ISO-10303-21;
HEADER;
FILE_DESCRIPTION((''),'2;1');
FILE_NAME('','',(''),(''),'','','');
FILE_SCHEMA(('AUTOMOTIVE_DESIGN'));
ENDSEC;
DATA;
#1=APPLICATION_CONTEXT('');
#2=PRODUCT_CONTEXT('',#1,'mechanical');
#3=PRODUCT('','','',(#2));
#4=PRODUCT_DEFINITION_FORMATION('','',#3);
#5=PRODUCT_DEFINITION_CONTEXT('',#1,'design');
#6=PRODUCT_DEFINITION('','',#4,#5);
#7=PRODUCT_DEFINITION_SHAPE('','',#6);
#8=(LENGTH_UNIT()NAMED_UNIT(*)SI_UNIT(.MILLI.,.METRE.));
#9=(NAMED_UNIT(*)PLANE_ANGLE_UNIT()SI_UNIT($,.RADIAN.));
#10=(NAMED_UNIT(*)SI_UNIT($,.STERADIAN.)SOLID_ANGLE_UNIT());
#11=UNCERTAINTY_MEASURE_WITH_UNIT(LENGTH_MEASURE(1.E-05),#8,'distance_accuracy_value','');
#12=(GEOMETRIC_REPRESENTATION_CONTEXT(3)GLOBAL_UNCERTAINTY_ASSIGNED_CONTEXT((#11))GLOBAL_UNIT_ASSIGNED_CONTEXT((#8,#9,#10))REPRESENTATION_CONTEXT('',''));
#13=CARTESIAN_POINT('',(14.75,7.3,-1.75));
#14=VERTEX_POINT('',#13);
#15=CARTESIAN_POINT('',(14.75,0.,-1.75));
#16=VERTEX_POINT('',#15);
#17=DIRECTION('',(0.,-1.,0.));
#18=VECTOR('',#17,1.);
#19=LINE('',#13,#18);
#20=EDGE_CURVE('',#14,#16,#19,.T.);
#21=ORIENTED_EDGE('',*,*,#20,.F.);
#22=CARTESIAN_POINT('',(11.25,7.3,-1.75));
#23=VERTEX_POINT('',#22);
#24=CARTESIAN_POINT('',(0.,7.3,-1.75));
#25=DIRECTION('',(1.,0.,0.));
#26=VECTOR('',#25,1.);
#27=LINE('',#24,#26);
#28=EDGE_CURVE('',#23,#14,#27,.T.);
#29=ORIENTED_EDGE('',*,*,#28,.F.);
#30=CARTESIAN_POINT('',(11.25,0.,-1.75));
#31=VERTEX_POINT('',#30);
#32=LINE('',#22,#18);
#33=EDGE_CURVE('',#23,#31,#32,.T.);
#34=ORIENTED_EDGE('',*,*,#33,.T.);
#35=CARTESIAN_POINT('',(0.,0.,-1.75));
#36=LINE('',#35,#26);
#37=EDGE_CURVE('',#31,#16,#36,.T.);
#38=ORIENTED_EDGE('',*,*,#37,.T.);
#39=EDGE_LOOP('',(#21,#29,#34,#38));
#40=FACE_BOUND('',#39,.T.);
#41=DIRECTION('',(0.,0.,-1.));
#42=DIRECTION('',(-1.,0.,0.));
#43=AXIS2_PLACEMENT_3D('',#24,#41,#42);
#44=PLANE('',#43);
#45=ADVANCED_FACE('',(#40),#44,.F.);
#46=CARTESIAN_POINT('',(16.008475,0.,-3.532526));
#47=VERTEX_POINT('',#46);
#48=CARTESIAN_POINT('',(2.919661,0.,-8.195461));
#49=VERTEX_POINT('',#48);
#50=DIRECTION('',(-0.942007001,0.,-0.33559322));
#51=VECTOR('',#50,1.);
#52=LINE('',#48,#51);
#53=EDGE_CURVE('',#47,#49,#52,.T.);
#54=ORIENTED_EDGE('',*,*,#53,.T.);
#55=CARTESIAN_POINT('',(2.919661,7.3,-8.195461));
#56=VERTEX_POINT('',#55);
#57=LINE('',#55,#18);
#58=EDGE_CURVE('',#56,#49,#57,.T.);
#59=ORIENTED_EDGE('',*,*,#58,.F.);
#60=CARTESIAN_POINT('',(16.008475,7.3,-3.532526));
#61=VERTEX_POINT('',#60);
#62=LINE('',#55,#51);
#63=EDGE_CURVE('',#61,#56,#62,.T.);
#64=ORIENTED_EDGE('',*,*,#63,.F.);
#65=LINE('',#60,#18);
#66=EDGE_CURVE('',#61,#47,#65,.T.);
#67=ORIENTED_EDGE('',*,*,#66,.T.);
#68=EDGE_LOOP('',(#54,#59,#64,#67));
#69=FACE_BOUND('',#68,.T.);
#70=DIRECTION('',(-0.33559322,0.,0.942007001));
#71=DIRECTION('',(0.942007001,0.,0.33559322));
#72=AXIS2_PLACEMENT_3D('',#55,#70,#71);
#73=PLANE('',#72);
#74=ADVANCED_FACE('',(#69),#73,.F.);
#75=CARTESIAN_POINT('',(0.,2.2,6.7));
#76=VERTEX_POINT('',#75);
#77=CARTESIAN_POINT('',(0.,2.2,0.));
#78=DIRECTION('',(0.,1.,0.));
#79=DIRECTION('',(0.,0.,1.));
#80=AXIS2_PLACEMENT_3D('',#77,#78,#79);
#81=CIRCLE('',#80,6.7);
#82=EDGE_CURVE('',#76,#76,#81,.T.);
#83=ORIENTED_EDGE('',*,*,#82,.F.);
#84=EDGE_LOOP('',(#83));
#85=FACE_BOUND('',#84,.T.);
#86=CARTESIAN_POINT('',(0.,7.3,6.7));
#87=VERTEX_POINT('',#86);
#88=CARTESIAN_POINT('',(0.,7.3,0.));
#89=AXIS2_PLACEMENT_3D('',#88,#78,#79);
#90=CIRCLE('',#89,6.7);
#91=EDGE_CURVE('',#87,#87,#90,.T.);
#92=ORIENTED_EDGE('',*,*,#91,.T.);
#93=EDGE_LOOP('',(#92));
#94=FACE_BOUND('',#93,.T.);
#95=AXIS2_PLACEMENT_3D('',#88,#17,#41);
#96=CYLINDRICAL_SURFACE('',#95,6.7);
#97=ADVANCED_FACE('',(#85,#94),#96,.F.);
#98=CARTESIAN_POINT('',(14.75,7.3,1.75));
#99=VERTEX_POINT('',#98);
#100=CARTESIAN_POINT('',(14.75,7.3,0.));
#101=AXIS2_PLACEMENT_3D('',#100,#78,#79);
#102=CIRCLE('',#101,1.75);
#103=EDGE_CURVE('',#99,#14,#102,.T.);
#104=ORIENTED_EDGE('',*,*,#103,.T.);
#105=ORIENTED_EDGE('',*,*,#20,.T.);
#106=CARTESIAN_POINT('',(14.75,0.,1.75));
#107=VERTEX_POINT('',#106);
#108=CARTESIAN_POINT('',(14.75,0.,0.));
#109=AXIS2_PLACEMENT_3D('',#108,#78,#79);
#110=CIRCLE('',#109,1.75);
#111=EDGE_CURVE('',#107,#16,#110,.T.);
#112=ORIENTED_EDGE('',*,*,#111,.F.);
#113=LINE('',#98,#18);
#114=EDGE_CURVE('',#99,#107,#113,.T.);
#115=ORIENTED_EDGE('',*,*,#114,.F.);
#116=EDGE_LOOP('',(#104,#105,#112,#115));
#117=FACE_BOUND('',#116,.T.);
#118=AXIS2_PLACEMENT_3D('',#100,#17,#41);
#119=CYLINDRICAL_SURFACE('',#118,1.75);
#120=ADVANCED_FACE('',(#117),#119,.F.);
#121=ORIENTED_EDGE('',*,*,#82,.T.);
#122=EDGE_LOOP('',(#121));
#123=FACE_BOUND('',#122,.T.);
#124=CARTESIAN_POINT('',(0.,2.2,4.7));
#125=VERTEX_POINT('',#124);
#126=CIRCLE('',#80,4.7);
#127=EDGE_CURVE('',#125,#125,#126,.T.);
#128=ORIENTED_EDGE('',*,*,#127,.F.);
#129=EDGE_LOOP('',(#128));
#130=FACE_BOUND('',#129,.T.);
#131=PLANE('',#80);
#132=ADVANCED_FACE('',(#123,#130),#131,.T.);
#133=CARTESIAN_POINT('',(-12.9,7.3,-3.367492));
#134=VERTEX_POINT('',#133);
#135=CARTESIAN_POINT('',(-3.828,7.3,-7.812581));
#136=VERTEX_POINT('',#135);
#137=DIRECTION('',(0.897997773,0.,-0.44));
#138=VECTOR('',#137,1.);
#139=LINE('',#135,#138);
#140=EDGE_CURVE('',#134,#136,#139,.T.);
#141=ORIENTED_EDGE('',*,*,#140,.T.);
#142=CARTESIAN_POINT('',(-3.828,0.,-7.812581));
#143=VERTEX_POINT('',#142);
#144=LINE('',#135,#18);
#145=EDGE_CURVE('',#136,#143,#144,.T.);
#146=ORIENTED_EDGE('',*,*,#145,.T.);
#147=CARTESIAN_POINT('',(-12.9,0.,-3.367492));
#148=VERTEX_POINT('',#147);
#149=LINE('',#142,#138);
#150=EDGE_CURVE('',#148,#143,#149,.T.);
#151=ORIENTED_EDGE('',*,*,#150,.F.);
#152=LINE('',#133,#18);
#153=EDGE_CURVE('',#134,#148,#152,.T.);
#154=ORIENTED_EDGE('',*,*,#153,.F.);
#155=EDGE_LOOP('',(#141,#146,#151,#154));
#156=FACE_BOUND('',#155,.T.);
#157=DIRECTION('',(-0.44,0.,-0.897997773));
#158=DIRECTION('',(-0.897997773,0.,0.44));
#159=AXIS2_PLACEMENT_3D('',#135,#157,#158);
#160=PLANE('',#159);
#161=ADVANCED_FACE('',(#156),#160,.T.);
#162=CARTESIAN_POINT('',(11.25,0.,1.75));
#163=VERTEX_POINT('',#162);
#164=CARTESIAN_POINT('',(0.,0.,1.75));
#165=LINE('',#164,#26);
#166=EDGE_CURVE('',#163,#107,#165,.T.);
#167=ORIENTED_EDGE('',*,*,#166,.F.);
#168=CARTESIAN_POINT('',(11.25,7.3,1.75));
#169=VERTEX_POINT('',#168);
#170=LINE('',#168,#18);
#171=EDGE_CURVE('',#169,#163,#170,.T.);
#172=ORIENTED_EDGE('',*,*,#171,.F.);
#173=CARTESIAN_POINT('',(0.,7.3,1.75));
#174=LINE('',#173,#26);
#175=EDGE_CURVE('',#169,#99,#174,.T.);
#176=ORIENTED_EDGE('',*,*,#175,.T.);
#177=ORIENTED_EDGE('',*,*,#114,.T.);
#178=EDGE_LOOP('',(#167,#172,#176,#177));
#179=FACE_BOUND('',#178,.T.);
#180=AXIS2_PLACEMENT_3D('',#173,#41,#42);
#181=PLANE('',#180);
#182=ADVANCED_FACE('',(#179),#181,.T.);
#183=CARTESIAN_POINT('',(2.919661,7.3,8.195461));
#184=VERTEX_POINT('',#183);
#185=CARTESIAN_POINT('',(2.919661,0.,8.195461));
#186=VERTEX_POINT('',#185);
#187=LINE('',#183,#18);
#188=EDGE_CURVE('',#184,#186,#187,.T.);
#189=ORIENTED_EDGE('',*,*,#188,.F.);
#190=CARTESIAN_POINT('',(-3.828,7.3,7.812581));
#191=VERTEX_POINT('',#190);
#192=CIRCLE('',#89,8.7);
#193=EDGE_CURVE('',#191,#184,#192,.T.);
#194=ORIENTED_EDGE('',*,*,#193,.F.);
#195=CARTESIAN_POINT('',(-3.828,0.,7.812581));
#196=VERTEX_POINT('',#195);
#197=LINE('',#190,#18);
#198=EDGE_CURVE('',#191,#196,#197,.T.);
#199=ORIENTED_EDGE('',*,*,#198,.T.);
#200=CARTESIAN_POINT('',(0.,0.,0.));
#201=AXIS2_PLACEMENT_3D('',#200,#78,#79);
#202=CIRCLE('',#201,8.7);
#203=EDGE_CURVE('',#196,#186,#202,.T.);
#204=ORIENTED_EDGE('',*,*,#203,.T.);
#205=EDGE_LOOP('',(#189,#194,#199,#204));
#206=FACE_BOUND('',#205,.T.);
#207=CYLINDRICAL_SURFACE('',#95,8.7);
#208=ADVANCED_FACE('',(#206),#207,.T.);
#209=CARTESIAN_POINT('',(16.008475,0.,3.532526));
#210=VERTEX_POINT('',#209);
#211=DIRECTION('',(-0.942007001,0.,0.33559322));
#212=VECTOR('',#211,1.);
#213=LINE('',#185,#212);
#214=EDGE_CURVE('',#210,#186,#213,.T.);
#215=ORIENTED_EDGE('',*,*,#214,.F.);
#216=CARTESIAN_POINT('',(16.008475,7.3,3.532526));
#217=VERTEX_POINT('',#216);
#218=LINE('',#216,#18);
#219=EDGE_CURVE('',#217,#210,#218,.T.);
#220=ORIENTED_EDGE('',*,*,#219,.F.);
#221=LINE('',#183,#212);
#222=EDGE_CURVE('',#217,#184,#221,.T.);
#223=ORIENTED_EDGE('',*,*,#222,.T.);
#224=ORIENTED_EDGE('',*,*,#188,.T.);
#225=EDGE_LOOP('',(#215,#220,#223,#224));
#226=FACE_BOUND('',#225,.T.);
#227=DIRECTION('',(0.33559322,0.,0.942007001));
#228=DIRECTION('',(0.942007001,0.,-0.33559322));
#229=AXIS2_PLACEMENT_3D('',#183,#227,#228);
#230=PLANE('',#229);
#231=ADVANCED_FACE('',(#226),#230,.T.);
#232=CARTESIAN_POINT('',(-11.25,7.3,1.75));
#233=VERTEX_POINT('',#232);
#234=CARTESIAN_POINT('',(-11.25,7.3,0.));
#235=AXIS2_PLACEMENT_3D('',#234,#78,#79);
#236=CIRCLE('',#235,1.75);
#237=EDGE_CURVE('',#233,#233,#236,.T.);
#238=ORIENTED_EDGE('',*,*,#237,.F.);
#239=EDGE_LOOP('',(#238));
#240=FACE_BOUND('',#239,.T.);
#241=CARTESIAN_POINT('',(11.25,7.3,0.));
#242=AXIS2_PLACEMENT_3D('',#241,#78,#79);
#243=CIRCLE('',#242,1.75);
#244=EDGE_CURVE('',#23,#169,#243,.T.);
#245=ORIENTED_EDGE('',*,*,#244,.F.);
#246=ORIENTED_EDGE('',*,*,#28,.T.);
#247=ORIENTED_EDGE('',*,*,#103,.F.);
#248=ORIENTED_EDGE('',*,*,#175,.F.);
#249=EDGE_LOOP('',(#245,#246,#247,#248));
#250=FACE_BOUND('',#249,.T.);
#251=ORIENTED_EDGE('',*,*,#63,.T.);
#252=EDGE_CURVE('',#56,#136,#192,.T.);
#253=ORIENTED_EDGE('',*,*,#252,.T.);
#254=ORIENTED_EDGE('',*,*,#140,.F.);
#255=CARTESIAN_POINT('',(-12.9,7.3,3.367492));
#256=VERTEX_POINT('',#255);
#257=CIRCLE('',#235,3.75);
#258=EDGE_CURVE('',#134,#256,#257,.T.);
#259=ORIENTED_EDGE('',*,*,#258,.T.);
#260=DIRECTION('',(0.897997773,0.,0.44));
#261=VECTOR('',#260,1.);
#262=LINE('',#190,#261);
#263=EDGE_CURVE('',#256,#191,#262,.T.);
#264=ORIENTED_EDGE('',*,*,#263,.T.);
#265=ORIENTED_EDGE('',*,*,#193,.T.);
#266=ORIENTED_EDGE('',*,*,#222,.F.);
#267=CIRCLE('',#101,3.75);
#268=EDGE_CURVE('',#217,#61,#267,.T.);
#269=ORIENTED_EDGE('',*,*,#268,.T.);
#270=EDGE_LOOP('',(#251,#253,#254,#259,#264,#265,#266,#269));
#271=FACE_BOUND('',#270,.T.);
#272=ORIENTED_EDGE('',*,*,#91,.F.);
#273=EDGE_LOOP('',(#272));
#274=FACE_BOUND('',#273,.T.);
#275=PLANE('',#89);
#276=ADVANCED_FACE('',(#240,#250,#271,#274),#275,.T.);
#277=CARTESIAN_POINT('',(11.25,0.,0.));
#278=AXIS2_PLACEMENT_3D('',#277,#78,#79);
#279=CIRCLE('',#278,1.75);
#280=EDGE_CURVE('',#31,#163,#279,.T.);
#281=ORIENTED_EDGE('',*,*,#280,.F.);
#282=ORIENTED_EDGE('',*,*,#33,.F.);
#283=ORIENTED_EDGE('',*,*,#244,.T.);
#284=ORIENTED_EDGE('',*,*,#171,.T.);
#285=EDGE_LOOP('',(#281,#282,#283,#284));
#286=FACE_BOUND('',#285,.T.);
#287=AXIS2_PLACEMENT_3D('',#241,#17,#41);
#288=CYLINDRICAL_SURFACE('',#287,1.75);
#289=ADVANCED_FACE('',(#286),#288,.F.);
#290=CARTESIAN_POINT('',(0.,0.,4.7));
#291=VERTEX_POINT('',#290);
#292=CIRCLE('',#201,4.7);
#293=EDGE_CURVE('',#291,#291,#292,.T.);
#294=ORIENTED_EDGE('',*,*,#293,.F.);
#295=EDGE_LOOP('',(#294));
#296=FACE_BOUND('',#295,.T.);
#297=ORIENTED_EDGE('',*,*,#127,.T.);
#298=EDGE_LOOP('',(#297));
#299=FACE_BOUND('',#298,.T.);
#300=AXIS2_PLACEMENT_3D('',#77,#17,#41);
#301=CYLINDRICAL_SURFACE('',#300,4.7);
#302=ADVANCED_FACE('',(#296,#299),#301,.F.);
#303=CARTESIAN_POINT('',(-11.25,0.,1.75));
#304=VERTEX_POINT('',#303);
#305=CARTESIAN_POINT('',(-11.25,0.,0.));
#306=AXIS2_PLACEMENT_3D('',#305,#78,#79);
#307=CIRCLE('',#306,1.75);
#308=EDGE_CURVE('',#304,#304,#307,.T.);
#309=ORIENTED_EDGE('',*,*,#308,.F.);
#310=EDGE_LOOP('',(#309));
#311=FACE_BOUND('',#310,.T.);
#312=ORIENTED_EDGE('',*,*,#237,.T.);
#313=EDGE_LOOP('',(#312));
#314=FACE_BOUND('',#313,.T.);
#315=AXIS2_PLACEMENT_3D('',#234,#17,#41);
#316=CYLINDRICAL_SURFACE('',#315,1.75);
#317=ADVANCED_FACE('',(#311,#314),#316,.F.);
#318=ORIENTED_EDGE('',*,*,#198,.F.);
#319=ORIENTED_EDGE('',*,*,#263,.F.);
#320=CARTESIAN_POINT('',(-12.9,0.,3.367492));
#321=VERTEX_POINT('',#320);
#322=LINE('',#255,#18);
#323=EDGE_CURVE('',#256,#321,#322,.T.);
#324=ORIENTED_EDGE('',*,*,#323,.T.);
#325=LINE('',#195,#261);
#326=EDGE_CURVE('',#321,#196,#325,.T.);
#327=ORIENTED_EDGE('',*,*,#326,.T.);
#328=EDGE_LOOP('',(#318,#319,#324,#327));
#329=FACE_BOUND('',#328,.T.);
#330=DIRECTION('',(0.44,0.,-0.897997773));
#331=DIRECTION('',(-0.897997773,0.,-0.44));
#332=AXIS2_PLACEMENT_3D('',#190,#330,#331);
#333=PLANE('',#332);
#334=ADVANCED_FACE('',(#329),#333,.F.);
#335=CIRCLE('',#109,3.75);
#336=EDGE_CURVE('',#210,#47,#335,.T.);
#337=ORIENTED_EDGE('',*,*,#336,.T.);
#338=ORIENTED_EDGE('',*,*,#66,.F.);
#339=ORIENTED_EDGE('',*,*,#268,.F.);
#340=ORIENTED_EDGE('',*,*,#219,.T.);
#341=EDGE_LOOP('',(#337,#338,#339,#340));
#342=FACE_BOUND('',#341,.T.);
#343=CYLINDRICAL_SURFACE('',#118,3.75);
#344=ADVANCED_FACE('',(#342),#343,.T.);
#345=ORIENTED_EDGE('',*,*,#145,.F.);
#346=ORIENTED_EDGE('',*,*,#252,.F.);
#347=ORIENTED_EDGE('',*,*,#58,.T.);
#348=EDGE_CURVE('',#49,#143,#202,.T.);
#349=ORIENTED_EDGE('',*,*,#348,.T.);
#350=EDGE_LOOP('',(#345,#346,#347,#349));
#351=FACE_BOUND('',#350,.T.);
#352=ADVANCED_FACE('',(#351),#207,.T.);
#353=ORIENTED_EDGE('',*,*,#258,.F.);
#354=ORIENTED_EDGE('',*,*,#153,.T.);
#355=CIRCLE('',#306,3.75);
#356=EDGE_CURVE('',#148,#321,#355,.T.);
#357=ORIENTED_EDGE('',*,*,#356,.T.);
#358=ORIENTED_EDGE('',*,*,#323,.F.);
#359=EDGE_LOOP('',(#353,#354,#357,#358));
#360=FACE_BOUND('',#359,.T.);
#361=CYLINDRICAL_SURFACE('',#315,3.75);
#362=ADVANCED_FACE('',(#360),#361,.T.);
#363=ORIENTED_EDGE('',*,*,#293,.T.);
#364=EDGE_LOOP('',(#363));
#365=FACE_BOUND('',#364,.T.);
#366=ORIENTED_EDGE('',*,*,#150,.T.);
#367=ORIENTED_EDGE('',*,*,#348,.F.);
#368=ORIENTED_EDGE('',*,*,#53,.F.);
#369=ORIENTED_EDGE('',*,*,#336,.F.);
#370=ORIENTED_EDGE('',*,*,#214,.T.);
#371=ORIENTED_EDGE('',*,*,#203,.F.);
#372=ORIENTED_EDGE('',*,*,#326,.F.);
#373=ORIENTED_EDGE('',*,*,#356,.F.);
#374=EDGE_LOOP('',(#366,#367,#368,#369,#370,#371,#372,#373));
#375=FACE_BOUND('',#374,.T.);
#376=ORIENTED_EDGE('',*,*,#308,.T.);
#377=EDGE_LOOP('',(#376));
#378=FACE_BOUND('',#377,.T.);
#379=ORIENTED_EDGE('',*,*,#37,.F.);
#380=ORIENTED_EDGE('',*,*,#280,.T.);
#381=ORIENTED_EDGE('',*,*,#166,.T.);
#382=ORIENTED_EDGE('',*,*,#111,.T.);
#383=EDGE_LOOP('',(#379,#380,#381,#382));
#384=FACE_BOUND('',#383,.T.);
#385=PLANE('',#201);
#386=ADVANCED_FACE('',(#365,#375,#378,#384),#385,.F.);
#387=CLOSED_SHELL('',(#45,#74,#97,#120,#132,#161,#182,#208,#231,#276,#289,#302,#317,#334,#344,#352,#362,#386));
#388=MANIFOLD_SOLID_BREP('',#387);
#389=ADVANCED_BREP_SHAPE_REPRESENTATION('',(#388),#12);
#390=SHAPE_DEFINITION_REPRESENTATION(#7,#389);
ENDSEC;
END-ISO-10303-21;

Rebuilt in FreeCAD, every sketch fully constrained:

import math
import FreeCAD as App
import Part
import Sketcher
Q = App.Units.Quantity

doc = App.newDocument("Part")
body = doc.addObject("PartDesign::Body", "Body")

sketch1 = body.newObject("Sketcher::SketchObject", "Sketch")
sketch1.AttachmentSupport = (doc.getObject("XZ_Plane"), [""])
sketch1.MapMode = "FlatFace"
sketch1.addGeometry([
    Part.ArcOfCircle(Part.Circle(App.Vector(0, 0, 0), App.Vector(0, 0, 1), 8.7), math.radians(-116.103881), math.radians(-70.391385)),
    Part.LineSegment(App.Vector(-3.828, -7.812581, 0), App.Vector(-12.9, -3.367492, 0)),
    Part.ArcOfCircle(Part.Circle(App.Vector(-11.25, 0, 0), App.Vector(0, 0, 1), 3.75), math.radians(116.103881), math.radians(243.896119)),
    Part.LineSegment(App.Vector(-12.9, 3.367492, 0), App.Vector(-3.828, 7.812581, 0)),
    Part.ArcOfCircle(Part.Circle(App.Vector(0, 0, 0), App.Vector(0, 0, 1), 8.7), math.radians(70.391385), math.radians(116.103881)),
    Part.LineSegment(App.Vector(2.919661, 8.195461, 0), App.Vector(16.008475, 3.532526, 0)),
    Part.ArcOfCircle(Part.Circle(App.Vector(14.75, 0, 0), App.Vector(0, 0, 1), 3.75), math.radians(-70.391385), math.radians(70.391385)),
    Part.LineSegment(App.Vector(16.008475, -3.532526, 0), App.Vector(2.919661, -8.195461, 0)),
    Part.ArcOfCircle(Part.Circle(App.Vector(14.75, 0, 0), App.Vector(0, 0, 1), 1.75), math.radians(70.391385), math.radians(90)),
    Part.LineSegment(App.Vector(14.75, 1.75, 0), App.Vector(11.25, 1.75, 0)),
    Part.ArcOfCircle(Part.Circle(App.Vector(11.25, 0, 0), App.Vector(0, 0, 1), 1.75), math.radians(90), math.radians(231.501257)),
    Part.ArcOfCircle(Part.Circle(App.Vector(11.25, 0, 0), App.Vector(0, 0, 1), 1.75), math.radians(-128.498743), math.radians(-90)),
    Part.LineSegment(App.Vector(11.25, -1.75, 0), App.Vector(14.75, -1.75, 0)),
    Part.ArcOfCircle(Part.Circle(App.Vector(14.75, 0, 0), App.Vector(0, 0, 1), 1.75), math.radians(-90), math.radians(-70.391385)),
    Part.ArcOfCircle(Part.Circle(App.Vector(14.75, 0, 0), App.Vector(0, 0, 1), 1.75), math.radians(-70.391385), math.radians(70.391385)),
    Part.ArcOfCircle(Part.Circle(App.Vector(-11.25, 0, 0), App.Vector(0, 0, 1), 1.75), math.radians(17.89067), math.radians(116.103881)),
    Part.ArcOfCircle(Part.Circle(App.Vector(-11.25, 0, 0), App.Vector(0, 0, 1), 1.75), math.radians(116.103881), math.radians(243.896119)),
    Part.ArcOfCircle(Part.Circle(App.Vector(-11.25, 0, 0), App.Vector(0, 0, 1), 1.75), math.radians(-116.103881), math.radians(0)),
    Part.ArcOfCircle(Part.Circle(App.Vector(-11.25, 0, 0), App.Vector(0, 0, 1), 1.75), math.radians(0), math.radians(17.89067)),
    Part.ArcOfCircle(Part.Circle(App.Vector(0, 0, 0), App.Vector(0, 0, 1), 6.7), math.radians(116.103881), math.radians(161.557008)),
    Part.ArcOfCircle(Part.Circle(App.Vector(0, 0, 0), App.Vector(0, 0, 1), 6.7), math.radians(161.557008), math.radians(243.896119)),
    Part.ArcOfCircle(Part.Circle(App.Vector(0, 0, 0), App.Vector(0, 0, 1), 6.7), math.radians(-116.103881), math.radians(-70.391385)),
    Part.ArcOfCircle(Part.Circle(App.Vector(0, 0, 0), App.Vector(0, 0, 1), 6.7), math.radians(-70.391385), math.radians(-24.938258)),
    Part.ArcOfCircle(Part.Circle(App.Vector(0, 0, 0), App.Vector(0, 0, 1), 6.7), math.radians(-24.938258), math.radians(0)),
    Part.ArcOfCircle(Part.Circle(App.Vector(0, 0, 0), App.Vector(0, 0, 1), 6.7), math.radians(0), math.radians(70.391385)),
    Part.ArcOfCircle(Part.Circle(App.Vector(0, 0, 0), App.Vector(0, 0, 1), 6.7), math.radians(70.391385), math.radians(116.103881)),
], False)
sketch1.addConstraint([
    Sketcher.Constraint("Tangent", 0, 1, 1, 1),
    Sketcher.Constraint("Tangent", 1, 2, 2, 2),
    Sketcher.Constraint("Tangent", 2, 1, 3, 1),
    Sketcher.Constraint("Tangent", 3, 2, 4, 2),
    Sketcher.Constraint("Tangent", 4, 1, 5, 1),
    Sketcher.Constraint("Tangent", 5, 2, 6, 2),
    Sketcher.Constraint("Tangent", 6, 1, 7, 1),
    Sketcher.Constraint("Tangent", 7, 2, 0, 2),
    Sketcher.Constraint("Tangent", 8, 2, 9, 1),
    Sketcher.Constraint("Tangent", 9, 2, 10, 1),
    Sketcher.Constraint("Tangent", 10, 2, 11, 1),
    Sketcher.Constraint("Tangent", 11, 2, 12, 1),
    Sketcher.Constraint("Tangent", 12, 2, 13, 1),
    Sketcher.Constraint("Tangent", 13, 2, 14, 1),
    Sketcher.Constraint("Tangent", 14, 2, 8, 1),
    Sketcher.Constraint("Tangent", 15, 2, 16, 1),
    Sketcher.Constraint("Tangent", 16, 2, 17, 1),
    Sketcher.Constraint("Tangent", 17, 2, 18, 1),
    Sketcher.Constraint("Tangent", 18, 2, 15, 1),
    Sketcher.Constraint("Tangent", 19, 2, 20, 1),
    Sketcher.Constraint("Tangent", 20, 2, 21, 1),
    Sketcher.Constraint("Tangent", 21, 2, 22, 1),
    Sketcher.Constraint("Tangent", 22, 2, 23, 1),
    Sketcher.Constraint("Tangent", 23, 2, 24, 1),
    Sketcher.Constraint("Tangent", 24, 2, 25, 1),
    Sketcher.Constraint("Tangent", 25, 2, 19, 1),
    Sketcher.Constraint("Horizontal", 9),
    Sketcher.Constraint("Horizontal", 12),
    Sketcher.Constraint("Coincident", 0, 3, -1, 1),
    Sketcher.Constraint("Coincident", 4, 3, -1, 1),
    Sketcher.Constraint("Coincident", 19, 3, -1, 1),
    Sketcher.Constraint("Coincident", 21, 3, -1, 1),
    Sketcher.Constraint("Coincident", 23, 3, -1, 1),
    Sketcher.Constraint("Coincident", 8, 3, 6, 3),
    Sketcher.Constraint("Coincident", 13, 3, 6, 3),
    Sketcher.Constraint("Coincident", 15, 3, 2, 3),
    Sketcher.Constraint("Equal", 0, 4),
    Sketcher.Constraint("Equal", 2, 6),
    Sketcher.Constraint("Equal", 8, 10),
    Sketcher.Constraint("Equal", 14, 15),
    Sketcher.Constraint("Equal", 15, 16),
    Sketcher.Constraint("Symmetric", 2, 3, 10, 3, -1, 1),
    Sketcher.Constraint("Symmetric", 13, 2, 14, 2, -1),
    Sketcher.Constraint("PointOnObject", 17, 2, -1),
    Sketcher.Constraint("PointOnObject", 23, 2, -1),
    Sketcher.Constraint("Vertical", 15, 2, 16, 2),
    Sketcher.Constraint("Vertical", 21, 2, 24, 2),
    Sketcher.Constraint("Vertical", 20, 2, 25, 2),
    Sketcher.Constraint("Radius", 0, Q("8.7 mm")),
    Sketcher.Constraint("Radius", 19, Q("6.7 mm")),
    Sketcher.Constraint("Radius", 2, Q("3.75 mm")),
    Sketcher.Constraint("Radius", 8, Q("1.75 mm")),
    Sketcher.Constraint("DistanceX", 9, 2, 9, 1, Q("3.5 mm")),
    Sketcher.Constraint("DistanceX", 2, 3, 6, 3, Q("26 mm")),
    Sketcher.Constraint("DistanceX", 15, 2, -1, 1, Q("12.02 mm")),
    Sketcher.Constraint("DistanceX", 0, 1, 20, 2, Q("0.88 mm")),
    Sketcher.Constraint("DistanceX", -1, 1, 10, 2, Q("10.160629 mm")),
    Sketcher.Constraint("DistanceX", -1, 1, 13, 2, Q("15.337288 mm")),
    Sketcher.Constraint("DistanceX", 19, 2, -1, 1, Q("6.355881 mm")),
    Sketcher.Constraint("DistanceX", -1, 1, 22, 2, Q("6.07531 mm")),
    Sketcher.Constraint("DistanceX", 18, 2, 19, 2, Q("3.228742 mm")),
    Sketcher.Constraint("DistanceY", 21, 2, 20, 2, Q("0.294862 mm")),
])
pad1 = body.newObject("PartDesign::Pad", "Pad")
pad1.Profile = sketch1
pad1.Length = 7.3
pad1.Reversed = True

sketch2 = body.newObject("Sketcher::SketchObject", "Sketch001")
sketch2.AttachmentSupport = (doc.getObject("XZ_Plane"), [""])
sketch2.MapMode = "FlatFace"
sketch2.addGeometry([
    Part.Circle(App.Vector(0, 0, 0), App.Vector(0, 0, 1), 6.7),
    Part.Circle(App.Vector(0, 0, 0), App.Vector(0, 0, 1), 4.7),
], False)
sketch2.addConstraint([
    Sketcher.Constraint("Coincident", 0, 3, -1, 1),
    Sketcher.Constraint("Coincident", 1, 3, -1, 1),
    Sketcher.Constraint("Diameter", 0, Q("13.4 mm")),
    Sketcher.Constraint("Diameter", 1, Q("9.4 mm")),
])
pad2 = body.newObject("PartDesign::Pad", "Pad001")
pad2.Profile = sketch2
pad2.Length = 2.2
pad2.Reversed = True

doc.recompute()
